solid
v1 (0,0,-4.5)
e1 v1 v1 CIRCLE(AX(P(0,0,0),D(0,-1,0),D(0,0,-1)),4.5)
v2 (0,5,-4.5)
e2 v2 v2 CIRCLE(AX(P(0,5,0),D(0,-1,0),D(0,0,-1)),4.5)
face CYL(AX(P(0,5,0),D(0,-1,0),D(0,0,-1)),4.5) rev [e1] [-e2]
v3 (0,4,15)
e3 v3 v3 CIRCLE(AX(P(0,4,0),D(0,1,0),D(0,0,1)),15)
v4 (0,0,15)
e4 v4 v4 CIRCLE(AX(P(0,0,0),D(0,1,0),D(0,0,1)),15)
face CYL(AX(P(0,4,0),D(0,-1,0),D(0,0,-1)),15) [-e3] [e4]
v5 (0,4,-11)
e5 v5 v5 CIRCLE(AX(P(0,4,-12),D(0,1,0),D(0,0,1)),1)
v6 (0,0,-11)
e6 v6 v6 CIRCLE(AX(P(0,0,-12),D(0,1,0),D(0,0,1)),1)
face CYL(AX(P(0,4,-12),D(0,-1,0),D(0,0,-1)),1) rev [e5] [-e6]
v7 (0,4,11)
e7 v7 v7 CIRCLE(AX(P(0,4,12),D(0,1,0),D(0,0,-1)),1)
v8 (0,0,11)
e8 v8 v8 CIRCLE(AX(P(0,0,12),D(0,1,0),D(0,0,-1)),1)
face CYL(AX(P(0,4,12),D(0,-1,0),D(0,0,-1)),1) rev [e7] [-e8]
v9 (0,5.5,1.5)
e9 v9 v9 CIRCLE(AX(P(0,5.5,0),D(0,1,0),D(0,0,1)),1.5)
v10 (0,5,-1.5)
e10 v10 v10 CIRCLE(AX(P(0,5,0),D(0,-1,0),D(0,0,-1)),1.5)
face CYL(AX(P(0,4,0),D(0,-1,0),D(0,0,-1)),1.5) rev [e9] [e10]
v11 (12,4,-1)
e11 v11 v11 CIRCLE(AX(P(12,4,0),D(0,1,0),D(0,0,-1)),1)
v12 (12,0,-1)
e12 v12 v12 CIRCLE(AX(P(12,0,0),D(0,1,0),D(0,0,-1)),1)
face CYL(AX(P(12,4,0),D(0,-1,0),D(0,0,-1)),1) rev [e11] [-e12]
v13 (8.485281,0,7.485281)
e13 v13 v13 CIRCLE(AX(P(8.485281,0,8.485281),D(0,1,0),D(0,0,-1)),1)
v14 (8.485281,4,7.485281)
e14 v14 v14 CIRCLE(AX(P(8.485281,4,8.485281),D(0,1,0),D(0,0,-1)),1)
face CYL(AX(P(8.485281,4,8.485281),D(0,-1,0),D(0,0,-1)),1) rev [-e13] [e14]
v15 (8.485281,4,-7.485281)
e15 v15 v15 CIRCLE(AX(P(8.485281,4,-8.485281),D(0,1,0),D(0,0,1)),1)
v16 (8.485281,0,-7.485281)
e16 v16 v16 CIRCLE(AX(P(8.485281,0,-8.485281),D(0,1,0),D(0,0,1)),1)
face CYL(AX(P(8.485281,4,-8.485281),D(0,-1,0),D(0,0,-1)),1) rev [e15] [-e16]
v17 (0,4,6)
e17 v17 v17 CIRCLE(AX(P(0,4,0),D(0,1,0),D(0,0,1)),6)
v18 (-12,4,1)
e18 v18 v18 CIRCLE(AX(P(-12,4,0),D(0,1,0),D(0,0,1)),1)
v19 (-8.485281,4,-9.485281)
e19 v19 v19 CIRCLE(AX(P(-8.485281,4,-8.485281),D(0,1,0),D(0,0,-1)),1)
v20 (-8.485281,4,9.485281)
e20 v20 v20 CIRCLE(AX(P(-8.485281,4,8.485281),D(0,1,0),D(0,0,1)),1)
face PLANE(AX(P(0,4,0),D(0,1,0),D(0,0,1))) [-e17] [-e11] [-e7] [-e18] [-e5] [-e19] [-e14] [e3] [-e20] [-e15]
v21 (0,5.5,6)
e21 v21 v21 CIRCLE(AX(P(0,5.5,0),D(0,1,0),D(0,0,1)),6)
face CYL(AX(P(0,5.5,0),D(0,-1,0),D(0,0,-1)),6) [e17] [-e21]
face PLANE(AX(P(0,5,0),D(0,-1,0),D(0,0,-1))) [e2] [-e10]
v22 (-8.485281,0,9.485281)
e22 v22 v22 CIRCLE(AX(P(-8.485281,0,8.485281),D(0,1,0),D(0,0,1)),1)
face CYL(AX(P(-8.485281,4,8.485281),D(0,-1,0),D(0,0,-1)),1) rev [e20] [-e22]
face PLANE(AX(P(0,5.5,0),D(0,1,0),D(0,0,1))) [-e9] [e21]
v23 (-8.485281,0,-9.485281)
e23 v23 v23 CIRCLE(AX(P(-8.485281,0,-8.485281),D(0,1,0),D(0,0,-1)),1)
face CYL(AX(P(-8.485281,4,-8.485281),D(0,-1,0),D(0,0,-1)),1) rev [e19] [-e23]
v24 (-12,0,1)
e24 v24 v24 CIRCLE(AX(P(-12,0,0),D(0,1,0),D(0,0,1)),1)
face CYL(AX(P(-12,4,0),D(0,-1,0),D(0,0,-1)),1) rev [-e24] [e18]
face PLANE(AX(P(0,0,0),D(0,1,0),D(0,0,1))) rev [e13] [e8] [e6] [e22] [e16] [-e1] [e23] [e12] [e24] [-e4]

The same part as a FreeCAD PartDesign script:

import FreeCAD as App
import Part
import Sketcher

V = App.Vector
Q = App.Units.Quantity

doc = App.newDocument("Part")
body = doc.addObject("PartDesign::Body", "Body")

# Sketch on XZ plane
sketch1 = body.newObject("Sketcher::SketchObject", "Sketch")
sketch1.AttachmentSupport = (doc.getObject("XZ_Plane"), [""])
sketch1.MapMode = "FlatFace"
sketch1.addGeometry(Part.Circle(V(0, 0, 0), V(0, 0, 1), 15), False)
sketch1.addGeometry(Part.Circle(V(-8.485281, -8.485281, 0), V(0, 0, 1), 1), False)
sketch1.addGeometry(Part.Circle(V(0, -12, 0), V(0, 0, 1), 1), False)
sketch1.addGeometry(Part.Circle(V(-12, 0, 0), V(0, 0, 1), 1), False)
sketch1.addGeometry(Part.Circle(V(-8.485281, 8.485281, 0), V(0, 0, 1), 1), False)
sketch1.addGeometry(Part.Circle(V(8.485281, -8.485281, 0), V(0, 0, 1), 1), False)
sketch1.addGeometry(Part.Circle(V(12, 0, 0), V(0, 0, 1), 1), False)
sketch1.addGeometry(Part.Circle(V(0, 0, 0), V(0, 0, 1), 1.5), False)
sketch1.addGeometry(Part.Circle(V(0, 12, 0), V(0, 0, 1), 1), False)
sketch1.addGeometry(Part.Circle(V(8.485281, 8.485281, 0), V(0, 0, 1), 1), False)
sketch1.addConstraint(Sketcher.Constraint("Coincident", 0, 3, -1, 1))
sketch1.addConstraint(Sketcher.Constraint("Coincident", 7, 3, -1, 1))
sketch1.addConstraint(Sketcher.Constraint("Equal", 1, 2))
sketch1.addConstraint(Sketcher.Constraint("Equal", 2, 3))
sketch1.addConstraint(Sketcher.Constraint("Equal", 3, 4))
sketch1.addConstraint(Sketcher.Constraint("Equal", 4, 5))
sketch1.addConstraint(Sketcher.Constraint("Equal", 5, 6))
sketch1.addConstraint(Sketcher.Constraint("Equal", 6, 8))
sketch1.addConstraint(Sketcher.Constraint("Equal", 8, 9))
sketch1.addConstraint(Sketcher.Constraint("Symmetric", 4, 3, 5, 3, -1, 1))
sketch1.addConstraint(Sketcher.Constraint("Symmetric", 3, 3, 6, 3, -1, 1))
sketch1.addConstraint(Sketcher.Constraint("Symmetric", 2, 3, 8, 3, -1, 1))
sketch1.addConstraint(Sketcher.Constraint("Symmetric", 1, 3, 9, 3, -1, 1))
sketch1.addConstraint(Sketcher.Constraint("Symmetric", 1, 3, 5, 3, -2))
sketch1.addConstraint(Sketcher.Constraint("PointOnObject", 2, 3, -2))
sketch1.addConstraint(Sketcher.Constraint("PointOnObject", 3, 3, -1))
sketch1.addConstraint(Sketcher.Constraint("Diameter", 0, Q("30 mm")))
sketch1.addConstraint(Sketcher.Constraint("Diameter", 1, Q("2 mm")))
sketch1.addConstraint(Sketcher.Constraint("Diameter", 7, Q("3 mm")))
sketch1.addConstraint(Sketcher.Constraint("DistanceY", 2, 3, -1, 1, Q("12 mm")))
sketch1.addConstraint(Sketcher.Constraint("DistanceX", 3, 3, -1, 1, Q("12 mm")))
sketch1.addConstraint(Sketcher.Constraint("DistanceX", 1, 3, -1, 1, Q("8.485281 mm")))
sketch1.addConstraint(Sketcher.Constraint("DistanceY", 1, 3, -1, 1, Q("8.485281 mm")))
pad1 = body.newObject("PartDesign::Pad", "Pad")
pad1.Profile = sketch1
pad1.Length = 4
pad1.Reversed = True

# Sketch on XZ plane
sketch2 = body.newObject("Sketcher::SketchObject", "Sketch001")
sketch2.AttachmentSupport = (doc.getObject("XZ_Plane"), [""])
sketch2.MapMode = "FlatFace"
sketch2.AttachmentOffset = App.Placement(V(0, 0, -4), App.Rotation())
sketch2.addGeometry(Part.Circle(V(0, 0, 0), V(0, 0, 1), 6), False)
sketch2.addGeometry(Part.Circle(V(0, 0, 0), V(0, 0, 1), 1.5), False)
sketch2.addConstraint(Sketcher.Constraint("Coincident", 0, 3, -1, 1))
sketch2.addConstraint(Sketcher.Constraint("Coincident", 1, 3, -1, 1))
sketch2.addConstraint(Sketcher.Constraint("Diameter", 0, Q("12 mm")))
sketch2.addConstraint(Sketcher.Constraint("Diameter", 1, Q("3 mm")))
pad2 = body.newObject("PartDesign::Pad", "Pad001")
pad2.Profile = sketch2
pad2.Length = 1.5
pad2.Reversed = True

# Sketch on XZ plane
sketch3 = body.newObject("Sketcher::SketchObject", "Sketch002")
sketch3.AttachmentSupport = (doc.getObject("XZ_Plane"), [""])
sketch3.MapMode = "FlatFace"
sketch3.addGeometry(Part.Circle(V(0, 0, 0), V(0, 0, 1), 4.5), False)
sketch3.addConstraint(Sketcher.Constraint("Coincident", 0, 3, -1, 1))
sketch3.addConstraint(Sketcher.Constraint("Diameter", 0, Q("9 mm")))
pocket1 = body.newObject("PartDesign::Pocket", "Pocket")
pocket1.Profile = sketch3
pocket1.Length = 5

doc.recompute()
